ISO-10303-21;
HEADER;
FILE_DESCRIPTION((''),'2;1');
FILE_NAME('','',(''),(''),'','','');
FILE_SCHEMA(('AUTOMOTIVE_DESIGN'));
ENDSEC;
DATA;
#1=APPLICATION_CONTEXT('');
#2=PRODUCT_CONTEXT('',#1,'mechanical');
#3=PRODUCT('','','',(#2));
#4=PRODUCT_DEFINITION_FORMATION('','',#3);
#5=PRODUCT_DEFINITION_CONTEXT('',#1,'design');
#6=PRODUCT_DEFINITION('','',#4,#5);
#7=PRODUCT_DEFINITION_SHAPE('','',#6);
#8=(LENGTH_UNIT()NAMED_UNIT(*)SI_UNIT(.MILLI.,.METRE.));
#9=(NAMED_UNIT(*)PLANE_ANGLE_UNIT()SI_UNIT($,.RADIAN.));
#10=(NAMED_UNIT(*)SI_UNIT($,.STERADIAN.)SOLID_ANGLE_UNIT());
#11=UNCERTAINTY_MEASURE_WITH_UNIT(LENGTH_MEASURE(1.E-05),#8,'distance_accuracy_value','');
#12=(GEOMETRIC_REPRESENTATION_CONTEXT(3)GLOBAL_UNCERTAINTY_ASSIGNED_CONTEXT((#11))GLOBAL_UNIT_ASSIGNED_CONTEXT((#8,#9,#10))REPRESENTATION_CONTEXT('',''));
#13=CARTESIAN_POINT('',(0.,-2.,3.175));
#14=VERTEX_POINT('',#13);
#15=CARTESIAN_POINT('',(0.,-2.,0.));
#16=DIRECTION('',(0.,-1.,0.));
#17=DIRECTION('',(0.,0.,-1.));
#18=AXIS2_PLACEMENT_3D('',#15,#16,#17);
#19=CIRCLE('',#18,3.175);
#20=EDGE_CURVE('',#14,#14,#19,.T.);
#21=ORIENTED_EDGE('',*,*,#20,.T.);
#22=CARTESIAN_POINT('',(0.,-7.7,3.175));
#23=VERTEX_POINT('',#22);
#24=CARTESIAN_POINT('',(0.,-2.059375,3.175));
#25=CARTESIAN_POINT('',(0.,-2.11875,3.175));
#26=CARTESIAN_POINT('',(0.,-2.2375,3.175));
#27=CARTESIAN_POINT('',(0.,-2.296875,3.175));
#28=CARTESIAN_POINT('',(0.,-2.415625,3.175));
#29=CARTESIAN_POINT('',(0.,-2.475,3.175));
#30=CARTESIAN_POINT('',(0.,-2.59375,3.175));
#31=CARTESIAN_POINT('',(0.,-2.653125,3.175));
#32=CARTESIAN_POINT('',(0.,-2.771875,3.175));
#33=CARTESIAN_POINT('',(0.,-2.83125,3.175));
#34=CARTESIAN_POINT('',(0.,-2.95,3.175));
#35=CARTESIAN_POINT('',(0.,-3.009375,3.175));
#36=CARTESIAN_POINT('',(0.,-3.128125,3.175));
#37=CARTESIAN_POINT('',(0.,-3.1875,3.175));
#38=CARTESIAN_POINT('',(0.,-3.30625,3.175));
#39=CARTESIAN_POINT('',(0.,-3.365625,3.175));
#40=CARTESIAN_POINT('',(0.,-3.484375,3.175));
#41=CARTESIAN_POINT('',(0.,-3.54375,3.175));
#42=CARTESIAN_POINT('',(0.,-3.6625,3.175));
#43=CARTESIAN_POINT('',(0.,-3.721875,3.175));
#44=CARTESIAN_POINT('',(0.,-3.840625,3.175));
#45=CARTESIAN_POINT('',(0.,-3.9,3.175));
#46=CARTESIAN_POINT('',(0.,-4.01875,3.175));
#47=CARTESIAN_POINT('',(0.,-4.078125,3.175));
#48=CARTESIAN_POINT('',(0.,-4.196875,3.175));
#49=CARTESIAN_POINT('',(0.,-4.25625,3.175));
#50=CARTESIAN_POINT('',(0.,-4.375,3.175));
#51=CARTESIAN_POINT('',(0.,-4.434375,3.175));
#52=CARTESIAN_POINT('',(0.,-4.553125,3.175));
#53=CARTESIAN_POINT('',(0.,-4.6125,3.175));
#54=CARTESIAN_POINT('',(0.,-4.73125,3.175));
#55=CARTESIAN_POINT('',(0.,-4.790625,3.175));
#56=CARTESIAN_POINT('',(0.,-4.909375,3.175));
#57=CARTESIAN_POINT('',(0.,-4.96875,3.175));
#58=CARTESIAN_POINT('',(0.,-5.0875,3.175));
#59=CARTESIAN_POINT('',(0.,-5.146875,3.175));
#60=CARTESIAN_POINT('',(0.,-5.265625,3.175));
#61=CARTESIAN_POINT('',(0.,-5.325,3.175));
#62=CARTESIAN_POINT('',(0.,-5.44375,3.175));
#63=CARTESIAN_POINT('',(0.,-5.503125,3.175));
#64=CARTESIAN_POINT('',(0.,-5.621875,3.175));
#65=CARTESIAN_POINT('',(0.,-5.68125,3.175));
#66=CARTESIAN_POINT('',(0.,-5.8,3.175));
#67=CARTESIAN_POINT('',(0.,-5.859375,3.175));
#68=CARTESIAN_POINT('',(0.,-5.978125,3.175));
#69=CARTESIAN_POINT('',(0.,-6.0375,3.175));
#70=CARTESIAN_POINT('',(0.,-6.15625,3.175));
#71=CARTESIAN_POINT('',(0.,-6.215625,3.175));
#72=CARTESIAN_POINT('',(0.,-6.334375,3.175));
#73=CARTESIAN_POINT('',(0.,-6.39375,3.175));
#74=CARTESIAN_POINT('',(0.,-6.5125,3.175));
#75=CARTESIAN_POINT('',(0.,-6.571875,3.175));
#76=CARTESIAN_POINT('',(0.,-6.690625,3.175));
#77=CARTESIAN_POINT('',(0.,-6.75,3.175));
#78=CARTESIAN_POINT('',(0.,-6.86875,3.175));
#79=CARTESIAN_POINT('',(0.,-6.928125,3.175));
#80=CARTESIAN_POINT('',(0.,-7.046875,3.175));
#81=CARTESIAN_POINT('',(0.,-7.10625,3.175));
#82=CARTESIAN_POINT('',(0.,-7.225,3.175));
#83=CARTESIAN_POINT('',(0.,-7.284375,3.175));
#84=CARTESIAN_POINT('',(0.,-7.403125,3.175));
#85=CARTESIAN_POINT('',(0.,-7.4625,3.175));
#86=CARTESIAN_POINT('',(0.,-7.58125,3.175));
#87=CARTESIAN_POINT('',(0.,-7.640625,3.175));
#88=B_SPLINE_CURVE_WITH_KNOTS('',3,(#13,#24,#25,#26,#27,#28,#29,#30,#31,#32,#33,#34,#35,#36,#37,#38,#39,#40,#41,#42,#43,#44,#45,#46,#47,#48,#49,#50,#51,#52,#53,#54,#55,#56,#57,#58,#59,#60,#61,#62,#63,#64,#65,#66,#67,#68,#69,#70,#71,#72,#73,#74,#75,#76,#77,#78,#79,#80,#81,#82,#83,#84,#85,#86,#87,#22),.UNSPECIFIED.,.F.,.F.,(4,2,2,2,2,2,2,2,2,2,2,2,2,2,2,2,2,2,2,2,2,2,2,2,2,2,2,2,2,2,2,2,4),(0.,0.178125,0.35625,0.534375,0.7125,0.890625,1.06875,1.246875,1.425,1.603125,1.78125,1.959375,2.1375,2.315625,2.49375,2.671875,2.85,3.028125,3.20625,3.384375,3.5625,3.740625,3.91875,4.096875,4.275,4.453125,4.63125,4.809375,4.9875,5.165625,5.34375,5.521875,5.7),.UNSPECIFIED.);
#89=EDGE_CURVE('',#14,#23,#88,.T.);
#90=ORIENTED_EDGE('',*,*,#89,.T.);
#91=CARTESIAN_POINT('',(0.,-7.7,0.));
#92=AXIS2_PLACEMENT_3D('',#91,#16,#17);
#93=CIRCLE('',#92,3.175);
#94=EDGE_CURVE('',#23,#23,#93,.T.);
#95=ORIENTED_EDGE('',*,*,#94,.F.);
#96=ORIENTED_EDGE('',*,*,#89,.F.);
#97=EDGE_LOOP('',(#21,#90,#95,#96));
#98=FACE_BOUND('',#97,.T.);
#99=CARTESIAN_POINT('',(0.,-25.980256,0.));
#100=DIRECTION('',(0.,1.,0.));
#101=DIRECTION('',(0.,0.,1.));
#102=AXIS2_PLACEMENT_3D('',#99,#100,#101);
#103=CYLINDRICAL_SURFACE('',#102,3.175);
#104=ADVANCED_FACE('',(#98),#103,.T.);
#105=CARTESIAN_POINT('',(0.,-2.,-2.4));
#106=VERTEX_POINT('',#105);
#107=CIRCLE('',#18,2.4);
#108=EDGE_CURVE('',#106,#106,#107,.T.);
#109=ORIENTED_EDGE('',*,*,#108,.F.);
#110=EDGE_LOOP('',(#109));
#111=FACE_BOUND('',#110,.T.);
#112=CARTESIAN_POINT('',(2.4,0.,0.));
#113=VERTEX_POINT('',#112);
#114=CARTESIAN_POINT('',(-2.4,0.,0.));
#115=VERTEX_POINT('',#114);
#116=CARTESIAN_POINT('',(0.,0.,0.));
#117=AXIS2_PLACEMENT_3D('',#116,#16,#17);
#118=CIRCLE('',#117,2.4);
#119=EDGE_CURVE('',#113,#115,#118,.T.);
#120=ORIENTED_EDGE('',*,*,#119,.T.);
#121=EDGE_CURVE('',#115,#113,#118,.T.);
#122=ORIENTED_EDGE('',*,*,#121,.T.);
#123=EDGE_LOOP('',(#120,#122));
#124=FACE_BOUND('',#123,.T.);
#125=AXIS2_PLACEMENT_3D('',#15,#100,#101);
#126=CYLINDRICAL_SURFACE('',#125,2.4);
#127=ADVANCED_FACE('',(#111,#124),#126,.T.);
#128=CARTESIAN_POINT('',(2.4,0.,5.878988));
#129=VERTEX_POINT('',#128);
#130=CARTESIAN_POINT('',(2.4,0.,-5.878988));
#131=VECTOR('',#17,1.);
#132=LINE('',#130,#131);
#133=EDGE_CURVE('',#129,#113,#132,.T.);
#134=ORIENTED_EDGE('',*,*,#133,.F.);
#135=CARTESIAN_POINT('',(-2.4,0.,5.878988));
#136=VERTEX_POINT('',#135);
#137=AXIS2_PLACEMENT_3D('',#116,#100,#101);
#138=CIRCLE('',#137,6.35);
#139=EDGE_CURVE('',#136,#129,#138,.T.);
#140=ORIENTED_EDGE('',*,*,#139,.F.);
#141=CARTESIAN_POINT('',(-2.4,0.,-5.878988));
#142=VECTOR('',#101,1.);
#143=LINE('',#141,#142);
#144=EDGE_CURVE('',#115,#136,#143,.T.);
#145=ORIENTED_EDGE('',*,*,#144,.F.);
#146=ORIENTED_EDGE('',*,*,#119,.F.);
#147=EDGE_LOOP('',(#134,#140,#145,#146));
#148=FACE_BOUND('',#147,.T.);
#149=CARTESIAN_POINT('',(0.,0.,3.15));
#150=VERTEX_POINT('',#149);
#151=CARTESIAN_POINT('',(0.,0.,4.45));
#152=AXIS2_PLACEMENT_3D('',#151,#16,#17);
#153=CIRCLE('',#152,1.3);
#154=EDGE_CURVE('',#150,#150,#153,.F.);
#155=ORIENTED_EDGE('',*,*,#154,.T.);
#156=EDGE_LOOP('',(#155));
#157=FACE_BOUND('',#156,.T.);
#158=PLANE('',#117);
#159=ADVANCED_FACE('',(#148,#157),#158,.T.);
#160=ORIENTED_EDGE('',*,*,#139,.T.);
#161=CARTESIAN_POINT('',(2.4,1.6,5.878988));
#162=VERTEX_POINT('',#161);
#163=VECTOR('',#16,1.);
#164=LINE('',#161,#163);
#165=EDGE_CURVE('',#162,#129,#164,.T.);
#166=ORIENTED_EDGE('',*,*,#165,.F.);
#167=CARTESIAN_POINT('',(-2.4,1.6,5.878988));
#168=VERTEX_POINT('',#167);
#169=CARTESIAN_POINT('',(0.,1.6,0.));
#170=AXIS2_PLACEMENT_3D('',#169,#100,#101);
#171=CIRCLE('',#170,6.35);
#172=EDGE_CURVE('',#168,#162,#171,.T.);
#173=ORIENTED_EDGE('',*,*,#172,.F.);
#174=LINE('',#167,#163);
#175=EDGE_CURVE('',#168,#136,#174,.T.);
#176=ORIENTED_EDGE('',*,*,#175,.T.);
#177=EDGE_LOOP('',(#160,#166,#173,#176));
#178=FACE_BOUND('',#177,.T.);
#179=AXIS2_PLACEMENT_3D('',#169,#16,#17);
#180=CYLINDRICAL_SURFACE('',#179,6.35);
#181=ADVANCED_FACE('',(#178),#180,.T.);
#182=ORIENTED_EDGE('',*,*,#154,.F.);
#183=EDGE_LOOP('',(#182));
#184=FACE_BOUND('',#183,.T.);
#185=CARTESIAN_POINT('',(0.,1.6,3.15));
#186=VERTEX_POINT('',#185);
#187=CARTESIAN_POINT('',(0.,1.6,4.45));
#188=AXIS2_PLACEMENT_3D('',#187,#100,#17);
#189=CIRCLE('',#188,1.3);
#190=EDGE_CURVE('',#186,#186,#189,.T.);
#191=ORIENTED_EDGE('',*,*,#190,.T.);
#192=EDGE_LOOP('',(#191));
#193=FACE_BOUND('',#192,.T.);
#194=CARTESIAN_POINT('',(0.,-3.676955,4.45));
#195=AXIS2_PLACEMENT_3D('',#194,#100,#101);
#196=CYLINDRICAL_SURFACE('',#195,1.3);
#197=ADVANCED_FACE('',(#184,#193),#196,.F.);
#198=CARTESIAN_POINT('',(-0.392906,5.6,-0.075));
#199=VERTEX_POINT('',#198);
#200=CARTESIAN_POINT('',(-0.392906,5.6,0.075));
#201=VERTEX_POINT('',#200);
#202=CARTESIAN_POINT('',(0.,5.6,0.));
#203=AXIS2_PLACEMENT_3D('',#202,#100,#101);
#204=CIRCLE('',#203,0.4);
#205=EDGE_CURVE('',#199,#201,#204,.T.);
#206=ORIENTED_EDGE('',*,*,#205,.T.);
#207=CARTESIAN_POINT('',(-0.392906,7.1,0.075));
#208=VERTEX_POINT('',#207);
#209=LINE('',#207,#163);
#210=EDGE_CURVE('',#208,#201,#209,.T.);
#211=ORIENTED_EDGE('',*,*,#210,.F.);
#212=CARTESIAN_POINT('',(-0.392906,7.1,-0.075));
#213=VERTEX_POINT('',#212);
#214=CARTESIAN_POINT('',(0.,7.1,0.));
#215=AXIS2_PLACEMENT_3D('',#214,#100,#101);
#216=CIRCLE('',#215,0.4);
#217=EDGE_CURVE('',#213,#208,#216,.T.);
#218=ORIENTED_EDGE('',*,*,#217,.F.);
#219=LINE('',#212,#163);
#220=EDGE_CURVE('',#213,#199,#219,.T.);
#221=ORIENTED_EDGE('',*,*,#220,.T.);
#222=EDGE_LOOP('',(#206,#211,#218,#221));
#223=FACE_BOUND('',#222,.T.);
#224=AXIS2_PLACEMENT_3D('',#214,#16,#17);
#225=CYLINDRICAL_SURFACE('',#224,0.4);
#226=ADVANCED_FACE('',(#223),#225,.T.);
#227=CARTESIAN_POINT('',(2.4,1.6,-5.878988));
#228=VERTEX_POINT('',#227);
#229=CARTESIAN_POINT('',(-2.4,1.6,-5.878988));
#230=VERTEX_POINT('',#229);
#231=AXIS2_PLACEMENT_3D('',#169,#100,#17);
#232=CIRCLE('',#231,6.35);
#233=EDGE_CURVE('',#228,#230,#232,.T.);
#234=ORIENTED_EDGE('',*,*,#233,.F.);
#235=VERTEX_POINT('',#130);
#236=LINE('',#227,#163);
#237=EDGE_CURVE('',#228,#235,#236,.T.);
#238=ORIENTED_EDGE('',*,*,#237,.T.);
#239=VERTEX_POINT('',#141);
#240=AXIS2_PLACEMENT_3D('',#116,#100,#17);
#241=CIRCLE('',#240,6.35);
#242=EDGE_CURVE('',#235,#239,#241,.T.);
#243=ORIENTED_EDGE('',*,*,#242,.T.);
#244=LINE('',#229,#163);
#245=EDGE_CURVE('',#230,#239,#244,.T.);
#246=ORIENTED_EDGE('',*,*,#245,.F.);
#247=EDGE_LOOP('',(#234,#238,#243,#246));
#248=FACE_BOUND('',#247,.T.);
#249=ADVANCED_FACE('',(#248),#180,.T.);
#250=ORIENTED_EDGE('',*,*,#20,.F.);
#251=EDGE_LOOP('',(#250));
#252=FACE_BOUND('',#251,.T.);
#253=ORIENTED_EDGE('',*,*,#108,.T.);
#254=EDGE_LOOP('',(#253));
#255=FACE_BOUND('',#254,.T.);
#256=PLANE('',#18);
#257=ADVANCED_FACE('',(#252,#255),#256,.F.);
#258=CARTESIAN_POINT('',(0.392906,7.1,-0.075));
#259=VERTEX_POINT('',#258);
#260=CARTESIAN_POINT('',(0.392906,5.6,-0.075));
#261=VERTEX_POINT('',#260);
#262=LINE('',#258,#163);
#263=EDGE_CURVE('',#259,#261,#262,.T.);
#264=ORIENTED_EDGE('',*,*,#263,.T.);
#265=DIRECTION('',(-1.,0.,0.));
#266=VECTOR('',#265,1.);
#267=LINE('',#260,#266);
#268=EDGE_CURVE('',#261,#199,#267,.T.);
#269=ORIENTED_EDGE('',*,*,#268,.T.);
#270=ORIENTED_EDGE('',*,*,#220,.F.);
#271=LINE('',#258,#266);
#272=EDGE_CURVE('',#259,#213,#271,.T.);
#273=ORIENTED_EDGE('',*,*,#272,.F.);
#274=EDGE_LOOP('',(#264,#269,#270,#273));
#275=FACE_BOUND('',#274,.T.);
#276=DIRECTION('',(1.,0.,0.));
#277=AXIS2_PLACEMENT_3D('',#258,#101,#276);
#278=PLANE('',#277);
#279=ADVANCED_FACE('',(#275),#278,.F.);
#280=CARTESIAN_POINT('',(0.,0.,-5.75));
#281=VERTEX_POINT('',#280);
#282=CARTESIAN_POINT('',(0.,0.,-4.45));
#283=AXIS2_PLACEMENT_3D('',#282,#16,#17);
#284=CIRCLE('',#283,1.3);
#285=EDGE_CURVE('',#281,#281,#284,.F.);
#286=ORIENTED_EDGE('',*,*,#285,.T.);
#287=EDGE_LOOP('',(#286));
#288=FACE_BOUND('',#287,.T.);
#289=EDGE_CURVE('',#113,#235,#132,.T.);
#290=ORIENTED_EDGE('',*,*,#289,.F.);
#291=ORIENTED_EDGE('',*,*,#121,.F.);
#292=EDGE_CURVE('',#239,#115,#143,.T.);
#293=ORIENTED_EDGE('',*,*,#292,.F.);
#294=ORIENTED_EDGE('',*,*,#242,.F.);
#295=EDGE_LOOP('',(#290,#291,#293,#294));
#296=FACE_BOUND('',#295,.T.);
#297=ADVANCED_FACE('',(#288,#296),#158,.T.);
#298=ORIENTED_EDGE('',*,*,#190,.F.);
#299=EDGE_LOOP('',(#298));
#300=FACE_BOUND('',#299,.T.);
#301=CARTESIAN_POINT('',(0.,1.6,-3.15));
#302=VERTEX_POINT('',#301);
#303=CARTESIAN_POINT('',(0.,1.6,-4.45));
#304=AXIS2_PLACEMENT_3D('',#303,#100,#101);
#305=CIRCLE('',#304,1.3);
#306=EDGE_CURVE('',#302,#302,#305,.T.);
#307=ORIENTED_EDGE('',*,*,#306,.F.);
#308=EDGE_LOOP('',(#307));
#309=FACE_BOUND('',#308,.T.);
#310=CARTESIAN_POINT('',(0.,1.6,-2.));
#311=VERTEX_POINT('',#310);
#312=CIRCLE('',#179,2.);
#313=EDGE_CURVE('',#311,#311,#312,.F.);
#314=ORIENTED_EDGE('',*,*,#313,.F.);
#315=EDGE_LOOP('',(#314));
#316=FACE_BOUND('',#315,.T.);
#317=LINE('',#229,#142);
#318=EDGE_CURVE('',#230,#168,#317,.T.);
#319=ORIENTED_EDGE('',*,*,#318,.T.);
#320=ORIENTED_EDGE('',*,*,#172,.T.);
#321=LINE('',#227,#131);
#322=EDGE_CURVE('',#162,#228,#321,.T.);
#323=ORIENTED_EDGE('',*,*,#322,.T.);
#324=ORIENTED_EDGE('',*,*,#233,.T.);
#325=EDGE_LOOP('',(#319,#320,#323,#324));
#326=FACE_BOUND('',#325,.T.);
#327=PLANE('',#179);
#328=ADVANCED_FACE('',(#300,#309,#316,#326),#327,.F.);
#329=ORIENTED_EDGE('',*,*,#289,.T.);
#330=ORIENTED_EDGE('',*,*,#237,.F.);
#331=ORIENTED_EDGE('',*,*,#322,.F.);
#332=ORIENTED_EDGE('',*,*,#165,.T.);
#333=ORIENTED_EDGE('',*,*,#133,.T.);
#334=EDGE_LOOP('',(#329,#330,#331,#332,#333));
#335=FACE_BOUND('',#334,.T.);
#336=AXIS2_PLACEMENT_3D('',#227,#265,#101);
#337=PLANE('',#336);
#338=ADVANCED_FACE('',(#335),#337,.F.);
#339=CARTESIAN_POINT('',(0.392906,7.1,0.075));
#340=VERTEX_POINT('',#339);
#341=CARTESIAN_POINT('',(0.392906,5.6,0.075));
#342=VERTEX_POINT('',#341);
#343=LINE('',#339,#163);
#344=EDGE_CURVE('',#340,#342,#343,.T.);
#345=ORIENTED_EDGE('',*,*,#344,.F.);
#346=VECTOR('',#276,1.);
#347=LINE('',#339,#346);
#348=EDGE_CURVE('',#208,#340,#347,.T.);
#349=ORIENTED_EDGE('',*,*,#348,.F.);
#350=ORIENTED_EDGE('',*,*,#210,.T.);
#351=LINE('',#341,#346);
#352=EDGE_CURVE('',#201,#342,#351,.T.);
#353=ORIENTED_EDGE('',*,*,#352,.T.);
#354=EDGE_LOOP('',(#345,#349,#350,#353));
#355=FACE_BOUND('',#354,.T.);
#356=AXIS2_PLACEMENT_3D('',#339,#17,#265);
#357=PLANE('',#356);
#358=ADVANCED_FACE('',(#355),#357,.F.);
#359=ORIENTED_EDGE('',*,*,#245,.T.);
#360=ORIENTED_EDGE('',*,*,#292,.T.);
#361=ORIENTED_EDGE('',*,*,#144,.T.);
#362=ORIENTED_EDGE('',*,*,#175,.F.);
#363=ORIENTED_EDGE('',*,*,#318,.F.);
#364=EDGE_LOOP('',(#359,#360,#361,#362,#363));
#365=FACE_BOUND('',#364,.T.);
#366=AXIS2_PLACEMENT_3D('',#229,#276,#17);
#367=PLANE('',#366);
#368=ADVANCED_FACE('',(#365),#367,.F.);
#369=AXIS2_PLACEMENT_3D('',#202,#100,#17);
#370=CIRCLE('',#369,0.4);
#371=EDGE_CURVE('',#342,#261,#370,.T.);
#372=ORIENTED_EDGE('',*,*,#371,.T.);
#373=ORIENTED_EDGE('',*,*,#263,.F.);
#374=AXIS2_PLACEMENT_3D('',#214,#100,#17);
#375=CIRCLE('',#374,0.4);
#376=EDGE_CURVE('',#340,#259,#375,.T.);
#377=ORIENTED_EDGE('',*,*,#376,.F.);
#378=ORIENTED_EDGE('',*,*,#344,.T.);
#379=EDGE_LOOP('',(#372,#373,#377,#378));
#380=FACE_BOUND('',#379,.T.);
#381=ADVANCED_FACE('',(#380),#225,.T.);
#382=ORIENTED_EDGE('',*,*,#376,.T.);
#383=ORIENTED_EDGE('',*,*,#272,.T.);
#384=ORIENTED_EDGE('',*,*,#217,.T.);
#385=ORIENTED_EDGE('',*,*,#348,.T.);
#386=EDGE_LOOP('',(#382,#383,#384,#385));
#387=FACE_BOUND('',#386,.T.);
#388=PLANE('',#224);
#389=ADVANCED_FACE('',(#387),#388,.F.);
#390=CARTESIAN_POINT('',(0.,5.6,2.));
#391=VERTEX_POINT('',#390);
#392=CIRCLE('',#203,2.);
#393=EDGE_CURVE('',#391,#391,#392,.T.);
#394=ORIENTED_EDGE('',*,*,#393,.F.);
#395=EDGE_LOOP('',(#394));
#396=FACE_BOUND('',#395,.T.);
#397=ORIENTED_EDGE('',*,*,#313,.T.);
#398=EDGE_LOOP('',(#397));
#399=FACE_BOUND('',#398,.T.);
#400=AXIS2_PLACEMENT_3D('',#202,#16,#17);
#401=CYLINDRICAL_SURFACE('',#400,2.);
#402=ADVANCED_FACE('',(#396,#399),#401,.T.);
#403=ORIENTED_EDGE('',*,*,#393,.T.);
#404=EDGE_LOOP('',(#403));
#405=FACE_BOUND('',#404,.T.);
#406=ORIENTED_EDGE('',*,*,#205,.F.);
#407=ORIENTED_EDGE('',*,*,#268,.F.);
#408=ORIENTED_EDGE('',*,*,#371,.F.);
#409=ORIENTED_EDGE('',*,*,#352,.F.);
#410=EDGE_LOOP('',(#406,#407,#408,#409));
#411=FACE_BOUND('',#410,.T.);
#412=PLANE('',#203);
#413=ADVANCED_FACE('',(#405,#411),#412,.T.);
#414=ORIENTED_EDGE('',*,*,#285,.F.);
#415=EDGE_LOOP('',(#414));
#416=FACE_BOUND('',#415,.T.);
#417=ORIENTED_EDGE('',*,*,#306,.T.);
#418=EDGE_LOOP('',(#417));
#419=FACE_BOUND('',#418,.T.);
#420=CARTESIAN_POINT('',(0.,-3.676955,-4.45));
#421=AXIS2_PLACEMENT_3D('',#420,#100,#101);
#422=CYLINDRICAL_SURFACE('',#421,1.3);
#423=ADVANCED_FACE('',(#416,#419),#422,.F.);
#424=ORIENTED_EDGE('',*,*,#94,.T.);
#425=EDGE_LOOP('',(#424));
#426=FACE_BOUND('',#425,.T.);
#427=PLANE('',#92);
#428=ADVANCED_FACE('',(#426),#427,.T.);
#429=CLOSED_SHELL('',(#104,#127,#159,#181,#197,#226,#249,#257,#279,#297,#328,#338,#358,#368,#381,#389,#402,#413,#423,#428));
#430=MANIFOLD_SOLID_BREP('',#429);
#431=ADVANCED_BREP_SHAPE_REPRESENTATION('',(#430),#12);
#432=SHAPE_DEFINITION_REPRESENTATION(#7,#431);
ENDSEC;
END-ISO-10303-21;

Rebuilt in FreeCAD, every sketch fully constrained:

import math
import FreeCAD as App
import Part
import Sketcher

doc = App.newDocument("Part")
body = doc.addObject("PartDesign::Body", "Body")

sketch1 = doc.addObject("Sketcher::SketchObject", "Sketch")
body.addObject(sketch1)
sketch1.AttachmentSupport = (doc.XZ_Plane, [""])
sketch1.MapMode = "FlatFace"
sketch1.addGeometry([
    Part.LineSegment(App.Vector(-2.4, -5.878988, 0), App.Vector(-2.4, 5.878988, 0)),
    Part.ArcOfCircle(Part.Circle(App.Vector(0, 0, 0), App.Vector(0, 0, 1), 6.35), math.radians(67.793071), math.radians(112.206929)),
    Part.LineSegment(App.Vector(2.4, 5.878988, 0), App.Vector(2.4, -5.878988, 0)),
    Part.ArcOfCircle(Part.Circle(App.Vector(0, 0, 0), App.Vector(0, 0, 1), 6.35), math.radians(-112.206929), math.radians(-67.793071)),
], False)
sketch1.addConstraint([
    Sketcher.Constraint("Coincident", 0, 2, 1, 2),
    Sketcher.Constraint("Coincident", 1, 1, 2, 1),
    Sketcher.Constraint("Coincident", 2, 2, 3, 2),
    Sketcher.Constraint("Coincident", 3, 1, 0, 1),
    Sketcher.Constraint("Vertical", 0),
    Sketcher.Constraint("Vertical", 2),
    Sketcher.Constraint("Coincident", 1, 3, -1, 1),
    Sketcher.Constraint("Coincident", 3, 3, -1, 1),
    Sketcher.Constraint("Equal", 1, 3),
    Sketcher.Constraint("Horizontal", 0, 2, 1, 1),
    Sketcher.Constraint("Radius", 1, 6.35),
    Sketcher.Constraint("DistanceX", 0, 2, -1, 1, 2.4),
])
pad1 = doc.addObject("PartDesign::Pad", "Pad")
body.addObject(pad1)
pad1.Profile = sketch1
pad1.Length = 1.6
pad1.Reversed = True

sketch2 = doc.addObject("Sketcher::SketchObject", "Sketch001")
body.addObject(sketch2)
sketch2.AttachmentSupport = (doc.XZ_Plane, [""])
sketch2.MapMode = "FlatFace"
sketch2.AttachmentOffset = App.Placement(App.Vector(0, 0, -1.6), App.Rotation())
sketch2.addGeometry([
    Part.Circle(App.Vector(0, -4.45, 0), App.Vector(0, 0, 1), 1.3),
    Part.Circle(App.Vector(0, 4.45, 0), App.Vector(0, 0, 1), 1.3),
], False)
sketch2.addConstraint([
    Sketcher.Constraint("Equal", 0, 1),
    Sketcher.Constraint("Symmetric", 0, 3, 1, 3, -1, 1),
    Sketcher.Constraint("PointOnObject", 0, 3, -2),
    Sketcher.Constraint("Diameter", 0, 2.6),
    Sketcher.Constraint("DistanceY", 0, 3, 1, 3, 8.9),
])
pocket1 = doc.addObject("PartDesign::Pocket", "Pocket")
body.addObject(pocket1)
pocket1.Profile = sketch2
pocket1.Length = 1.6
pocket1.Reversed = True

sketch3 = doc.addObject("Sketcher::SketchObject", "Sketch002")
body.addObject(sketch3)
sketch3.AttachmentSupport = (doc.XZ_Plane, [""])
sketch3.MapMode = "FlatFace"
sketch3.AttachmentOffset = App.Placement(App.Vector(0, 0, -1.6), App.Rotation())
sketch3.addGeometry(Part.Circle(App.Vector(0, 0, 0), App.Vector(0, 0, 1), 2), False)
sketch3.addConstraint([
    Sketcher.Constraint("Coincident", 0, 3, -1, 1),
    Sketcher.Constraint("Diameter", 0, 4.0),
])
pad2 = doc.addObject("PartDesign::Pad", "Pad001")
body.addObject(pad2)
pad2.Profile = sketch3
pad2.Length = 4
pad2.Reversed = True

sketch4 = doc.addObject("Sketcher::SketchObject", "Sketch003")
body.addObject(sketch4)
sketch4.AttachmentSupport = (doc.XZ_Plane, [""])
sketch4.MapMode = "FlatFace"
sketch4.AttachmentOffset = App.Placement(App.Vector(0, 0, -5.6), App.Rotation())
sketch4.addGeometry([
    Part.LineSegment(App.Vector(0.392906, -0.075, 0), App.Vector(-0.392906, -0.075, 0)),
    Part.ArcOfCircle(Part.Circle(App.Vector(0, 0, 0), App.Vector(0, 0, 1), 0.4), math.radians(169.193077), math.radians(190.806923)),
    Part.LineSegment(App.Vector(-0.392906, 0.075, 0), App.Vector(0.392906, 0.075, 0)),
    Part.ArcOfCircle(Part.Circle(App.Vector(0, 0, 0), App.Vector(0, 0, 1), 0.4), math.radians(-10.806923), math.radians(10.806923)),
], False)
sketch4.addConstraint([
    Sketcher.Constraint("Coincident", 0, 2, 1, 2),
    Sketcher.Constraint("Coincident", 1, 1, 2, 1),
    Sketcher.Constraint("Coincident", 2, 2, 3, 2),
    Sketcher.Constraint("Coincident", 3, 1, 0, 1),
    Sketcher.Constraint("Horizontal", 0),
    Sketcher.Constraint("Horizontal", 2),
    Sketcher.Constraint("Coincident", 1, 3, -1, 1),
    Sketcher.Constraint("Coincident", 3, 3, -1, 1),
    Sketcher.Constraint("Equal", 1, 3),
    Sketcher.Constraint("Vertical", 0, 2, 1, 1),
    Sketcher.Constraint("Radius", 1, 0.4),
    Sketcher.Constraint("DistanceY", 0, 2, 1, 1, 0.15),
])
pad3 = doc.addObject("PartDesign::Pad", "Pad002")
body.addObject(pad3)
pad3.Profile = sketch4
pad3.Length = 1.5
pad3.Reversed = True

sketch5 = doc.addObject("Sketcher::SketchObject", "Sketch004")
body.addObject(sketch5)
sketch5.AttachmentSupport = (doc.XZ_Plane, [""])
sketch5.MapMode = "FlatFace"
sketch5.addGeometry(Part.Circle(App.Vector(0, 0, 0), App.Vector(0, 0, 1), 2.4), False)
sketch5.addConstraint([
    Sketcher.Constraint("Coincident", 0, 3, -1, 1),
    Sketcher.Constraint("Diameter", 0, 4.8),
])
pad4 = doc.addObject("PartDesign::Pad", "Pad003")
body.addObject(pad4)
pad4.Profile = sketch5
pad4.Length = 2

sketch6 = doc.addObject("Sketcher::SketchObject", "Sketch005")
body.addObject(sketch6)
sketch6.AttachmentSupport = (doc.XZ_Plane, [""])
sketch6.MapMode = "FlatFace"
sketch6.AttachmentOffset = App.Placement(App.Vector(0, 0, 2), App.Rotation())
sketch6.addGeometry(Part.Circle(App.Vector(0, 0, 0), App.Vector(0, 0, 1), 3.175), False)
sketch6.addConstraint([
    Sketcher.Constraint("Coincident", 0, 3, -1, 1),
    Sketcher.Constraint("Diameter", 0, 6.35),
])
pad5 = doc.addObject("PartDesign::Pad", "Pad004")
body.addObject(pad5)
pad5.Profile = sketch6
pad5.Length = 5.7

doc.recompute()
